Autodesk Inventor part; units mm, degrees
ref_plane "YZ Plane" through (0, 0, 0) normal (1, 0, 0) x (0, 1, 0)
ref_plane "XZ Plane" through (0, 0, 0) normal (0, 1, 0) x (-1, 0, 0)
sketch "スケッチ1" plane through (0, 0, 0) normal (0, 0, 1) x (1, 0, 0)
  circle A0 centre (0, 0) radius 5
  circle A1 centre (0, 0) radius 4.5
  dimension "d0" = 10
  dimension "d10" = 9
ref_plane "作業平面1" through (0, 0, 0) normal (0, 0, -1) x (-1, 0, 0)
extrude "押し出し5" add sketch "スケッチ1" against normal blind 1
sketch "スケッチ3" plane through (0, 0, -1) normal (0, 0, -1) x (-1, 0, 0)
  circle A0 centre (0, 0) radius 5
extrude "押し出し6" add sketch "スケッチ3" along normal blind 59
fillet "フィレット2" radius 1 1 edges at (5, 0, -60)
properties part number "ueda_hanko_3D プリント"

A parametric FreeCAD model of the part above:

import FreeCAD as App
import Part
import Sketcher

V = App.Vector


def edges_at(feature, points):
    """Names of the edges that pass closest to the given points."""
    edges = feature.Shape.Edges
    near = lambda p: min(range(len(edges)), key=lambda i: edges[i].distToShape(Part.Vertex(*p))[0])
    return sorted({f"Edge{near(p) + 1}" for p in points})

doc = App.newDocument("Part")
params = doc.addObject("Spreadsheet::Sheet", "Params")
for row, (alias, value) in enumerate([
    ("sketch1_diameter", "10 mm"),
    ("sketch1_diameter2", "9 mm"),
    ("pad1_length", "1 mm"),
    ("sketch2_diameter", "10 mm"),
    ("pad2_length", "59 mm"),
    ("fillet_radius", "1 mm"),
], start=1):
    params.set(f"A{row}", alias)
    params.set(f"B{row}", "=" + value)
    params.setAlias(f"B{row}", alias)

body = doc.addObject("PartDesign::Body", "Body")

# Sketch on XY plane
sketch1 = doc.addObject("Sketcher::SketchObject", "Sketch")
body.addObject(sketch1)
sketch1.AttachmentSupport = (doc.XY_Plane, [""])
sketch1.MapMode = "FlatFace"
sketch1.addGeometry(Part.Circle(V(0, 0, 0), V(0, 0, 1), 5), False)
sketch1.addGeometry(Part.Circle(V(0, 0, 0), V(0, 0, 1), 4.5), False)
sketch1.addConstraint(Sketcher.Constraint("Coincident", 0, 3, -1, 1))
sketch1.addConstraint(Sketcher.Constraint("Coincident", 1, 3, -1, 1))
sketch1.addConstraint(Sketcher.Constraint("Diameter", 0, 10.0))
sketch1.addConstraint(Sketcher.Constraint("Diameter", 1, 9.0))
sketch1.setExpression("Constraints[2]", "Params.sketch1_diameter")
sketch1.setExpression("Constraints[3]", "Params.sketch1_diameter2")
pad1 = doc.addObject("PartDesign::Pad", "Pad")
body.addObject(pad1)
pad1.Profile = sketch1
pad1.setExpression("Length", "Params.pad1_length")
pad1.Reversed = True

# Sketch on XY plane
sketch2 = doc.addObject("Sketcher::SketchObject", "Sketch001")
body.addObject(sketch2)
sketch2.AttachmentSupport = (doc.XY_Plane, [""])
sketch2.MapMode = "FlatFace"
sketch2.AttachmentOffset = App.Placement(V(0, 0, -1), App.Rotation())
sketch2.addGeometry(Part.Circle(V(0, 0, 0), V(0, 0, 1), 5), False)
sketch2.addConstraint(Sketcher.Constraint("Coincident", 0, 3, -1, 1))
sketch2.addConstraint(Sketcher.Constraint("Diameter", 0, 10.0))
sketch2.setExpression("Constraints[1]", "Params.sketch2_diameter")
pad2 = doc.addObject("PartDesign::Pad", "Pad001")
body.addObject(pad2)
pad2.Profile = sketch2
pad2.setExpression("Length", "Params.pad2_length")
pad2.Reversed = True
doc.recompute()

fillet = doc.addObject("PartDesign::Fillet", "Fillet")
body.addObject(fillet)
fillet.Base = (pad2, edges_at(pad2, [(5, 0, -60)]))
fillet.setExpression("Radius", "Params.fillet_radius")

doc.recompute()
